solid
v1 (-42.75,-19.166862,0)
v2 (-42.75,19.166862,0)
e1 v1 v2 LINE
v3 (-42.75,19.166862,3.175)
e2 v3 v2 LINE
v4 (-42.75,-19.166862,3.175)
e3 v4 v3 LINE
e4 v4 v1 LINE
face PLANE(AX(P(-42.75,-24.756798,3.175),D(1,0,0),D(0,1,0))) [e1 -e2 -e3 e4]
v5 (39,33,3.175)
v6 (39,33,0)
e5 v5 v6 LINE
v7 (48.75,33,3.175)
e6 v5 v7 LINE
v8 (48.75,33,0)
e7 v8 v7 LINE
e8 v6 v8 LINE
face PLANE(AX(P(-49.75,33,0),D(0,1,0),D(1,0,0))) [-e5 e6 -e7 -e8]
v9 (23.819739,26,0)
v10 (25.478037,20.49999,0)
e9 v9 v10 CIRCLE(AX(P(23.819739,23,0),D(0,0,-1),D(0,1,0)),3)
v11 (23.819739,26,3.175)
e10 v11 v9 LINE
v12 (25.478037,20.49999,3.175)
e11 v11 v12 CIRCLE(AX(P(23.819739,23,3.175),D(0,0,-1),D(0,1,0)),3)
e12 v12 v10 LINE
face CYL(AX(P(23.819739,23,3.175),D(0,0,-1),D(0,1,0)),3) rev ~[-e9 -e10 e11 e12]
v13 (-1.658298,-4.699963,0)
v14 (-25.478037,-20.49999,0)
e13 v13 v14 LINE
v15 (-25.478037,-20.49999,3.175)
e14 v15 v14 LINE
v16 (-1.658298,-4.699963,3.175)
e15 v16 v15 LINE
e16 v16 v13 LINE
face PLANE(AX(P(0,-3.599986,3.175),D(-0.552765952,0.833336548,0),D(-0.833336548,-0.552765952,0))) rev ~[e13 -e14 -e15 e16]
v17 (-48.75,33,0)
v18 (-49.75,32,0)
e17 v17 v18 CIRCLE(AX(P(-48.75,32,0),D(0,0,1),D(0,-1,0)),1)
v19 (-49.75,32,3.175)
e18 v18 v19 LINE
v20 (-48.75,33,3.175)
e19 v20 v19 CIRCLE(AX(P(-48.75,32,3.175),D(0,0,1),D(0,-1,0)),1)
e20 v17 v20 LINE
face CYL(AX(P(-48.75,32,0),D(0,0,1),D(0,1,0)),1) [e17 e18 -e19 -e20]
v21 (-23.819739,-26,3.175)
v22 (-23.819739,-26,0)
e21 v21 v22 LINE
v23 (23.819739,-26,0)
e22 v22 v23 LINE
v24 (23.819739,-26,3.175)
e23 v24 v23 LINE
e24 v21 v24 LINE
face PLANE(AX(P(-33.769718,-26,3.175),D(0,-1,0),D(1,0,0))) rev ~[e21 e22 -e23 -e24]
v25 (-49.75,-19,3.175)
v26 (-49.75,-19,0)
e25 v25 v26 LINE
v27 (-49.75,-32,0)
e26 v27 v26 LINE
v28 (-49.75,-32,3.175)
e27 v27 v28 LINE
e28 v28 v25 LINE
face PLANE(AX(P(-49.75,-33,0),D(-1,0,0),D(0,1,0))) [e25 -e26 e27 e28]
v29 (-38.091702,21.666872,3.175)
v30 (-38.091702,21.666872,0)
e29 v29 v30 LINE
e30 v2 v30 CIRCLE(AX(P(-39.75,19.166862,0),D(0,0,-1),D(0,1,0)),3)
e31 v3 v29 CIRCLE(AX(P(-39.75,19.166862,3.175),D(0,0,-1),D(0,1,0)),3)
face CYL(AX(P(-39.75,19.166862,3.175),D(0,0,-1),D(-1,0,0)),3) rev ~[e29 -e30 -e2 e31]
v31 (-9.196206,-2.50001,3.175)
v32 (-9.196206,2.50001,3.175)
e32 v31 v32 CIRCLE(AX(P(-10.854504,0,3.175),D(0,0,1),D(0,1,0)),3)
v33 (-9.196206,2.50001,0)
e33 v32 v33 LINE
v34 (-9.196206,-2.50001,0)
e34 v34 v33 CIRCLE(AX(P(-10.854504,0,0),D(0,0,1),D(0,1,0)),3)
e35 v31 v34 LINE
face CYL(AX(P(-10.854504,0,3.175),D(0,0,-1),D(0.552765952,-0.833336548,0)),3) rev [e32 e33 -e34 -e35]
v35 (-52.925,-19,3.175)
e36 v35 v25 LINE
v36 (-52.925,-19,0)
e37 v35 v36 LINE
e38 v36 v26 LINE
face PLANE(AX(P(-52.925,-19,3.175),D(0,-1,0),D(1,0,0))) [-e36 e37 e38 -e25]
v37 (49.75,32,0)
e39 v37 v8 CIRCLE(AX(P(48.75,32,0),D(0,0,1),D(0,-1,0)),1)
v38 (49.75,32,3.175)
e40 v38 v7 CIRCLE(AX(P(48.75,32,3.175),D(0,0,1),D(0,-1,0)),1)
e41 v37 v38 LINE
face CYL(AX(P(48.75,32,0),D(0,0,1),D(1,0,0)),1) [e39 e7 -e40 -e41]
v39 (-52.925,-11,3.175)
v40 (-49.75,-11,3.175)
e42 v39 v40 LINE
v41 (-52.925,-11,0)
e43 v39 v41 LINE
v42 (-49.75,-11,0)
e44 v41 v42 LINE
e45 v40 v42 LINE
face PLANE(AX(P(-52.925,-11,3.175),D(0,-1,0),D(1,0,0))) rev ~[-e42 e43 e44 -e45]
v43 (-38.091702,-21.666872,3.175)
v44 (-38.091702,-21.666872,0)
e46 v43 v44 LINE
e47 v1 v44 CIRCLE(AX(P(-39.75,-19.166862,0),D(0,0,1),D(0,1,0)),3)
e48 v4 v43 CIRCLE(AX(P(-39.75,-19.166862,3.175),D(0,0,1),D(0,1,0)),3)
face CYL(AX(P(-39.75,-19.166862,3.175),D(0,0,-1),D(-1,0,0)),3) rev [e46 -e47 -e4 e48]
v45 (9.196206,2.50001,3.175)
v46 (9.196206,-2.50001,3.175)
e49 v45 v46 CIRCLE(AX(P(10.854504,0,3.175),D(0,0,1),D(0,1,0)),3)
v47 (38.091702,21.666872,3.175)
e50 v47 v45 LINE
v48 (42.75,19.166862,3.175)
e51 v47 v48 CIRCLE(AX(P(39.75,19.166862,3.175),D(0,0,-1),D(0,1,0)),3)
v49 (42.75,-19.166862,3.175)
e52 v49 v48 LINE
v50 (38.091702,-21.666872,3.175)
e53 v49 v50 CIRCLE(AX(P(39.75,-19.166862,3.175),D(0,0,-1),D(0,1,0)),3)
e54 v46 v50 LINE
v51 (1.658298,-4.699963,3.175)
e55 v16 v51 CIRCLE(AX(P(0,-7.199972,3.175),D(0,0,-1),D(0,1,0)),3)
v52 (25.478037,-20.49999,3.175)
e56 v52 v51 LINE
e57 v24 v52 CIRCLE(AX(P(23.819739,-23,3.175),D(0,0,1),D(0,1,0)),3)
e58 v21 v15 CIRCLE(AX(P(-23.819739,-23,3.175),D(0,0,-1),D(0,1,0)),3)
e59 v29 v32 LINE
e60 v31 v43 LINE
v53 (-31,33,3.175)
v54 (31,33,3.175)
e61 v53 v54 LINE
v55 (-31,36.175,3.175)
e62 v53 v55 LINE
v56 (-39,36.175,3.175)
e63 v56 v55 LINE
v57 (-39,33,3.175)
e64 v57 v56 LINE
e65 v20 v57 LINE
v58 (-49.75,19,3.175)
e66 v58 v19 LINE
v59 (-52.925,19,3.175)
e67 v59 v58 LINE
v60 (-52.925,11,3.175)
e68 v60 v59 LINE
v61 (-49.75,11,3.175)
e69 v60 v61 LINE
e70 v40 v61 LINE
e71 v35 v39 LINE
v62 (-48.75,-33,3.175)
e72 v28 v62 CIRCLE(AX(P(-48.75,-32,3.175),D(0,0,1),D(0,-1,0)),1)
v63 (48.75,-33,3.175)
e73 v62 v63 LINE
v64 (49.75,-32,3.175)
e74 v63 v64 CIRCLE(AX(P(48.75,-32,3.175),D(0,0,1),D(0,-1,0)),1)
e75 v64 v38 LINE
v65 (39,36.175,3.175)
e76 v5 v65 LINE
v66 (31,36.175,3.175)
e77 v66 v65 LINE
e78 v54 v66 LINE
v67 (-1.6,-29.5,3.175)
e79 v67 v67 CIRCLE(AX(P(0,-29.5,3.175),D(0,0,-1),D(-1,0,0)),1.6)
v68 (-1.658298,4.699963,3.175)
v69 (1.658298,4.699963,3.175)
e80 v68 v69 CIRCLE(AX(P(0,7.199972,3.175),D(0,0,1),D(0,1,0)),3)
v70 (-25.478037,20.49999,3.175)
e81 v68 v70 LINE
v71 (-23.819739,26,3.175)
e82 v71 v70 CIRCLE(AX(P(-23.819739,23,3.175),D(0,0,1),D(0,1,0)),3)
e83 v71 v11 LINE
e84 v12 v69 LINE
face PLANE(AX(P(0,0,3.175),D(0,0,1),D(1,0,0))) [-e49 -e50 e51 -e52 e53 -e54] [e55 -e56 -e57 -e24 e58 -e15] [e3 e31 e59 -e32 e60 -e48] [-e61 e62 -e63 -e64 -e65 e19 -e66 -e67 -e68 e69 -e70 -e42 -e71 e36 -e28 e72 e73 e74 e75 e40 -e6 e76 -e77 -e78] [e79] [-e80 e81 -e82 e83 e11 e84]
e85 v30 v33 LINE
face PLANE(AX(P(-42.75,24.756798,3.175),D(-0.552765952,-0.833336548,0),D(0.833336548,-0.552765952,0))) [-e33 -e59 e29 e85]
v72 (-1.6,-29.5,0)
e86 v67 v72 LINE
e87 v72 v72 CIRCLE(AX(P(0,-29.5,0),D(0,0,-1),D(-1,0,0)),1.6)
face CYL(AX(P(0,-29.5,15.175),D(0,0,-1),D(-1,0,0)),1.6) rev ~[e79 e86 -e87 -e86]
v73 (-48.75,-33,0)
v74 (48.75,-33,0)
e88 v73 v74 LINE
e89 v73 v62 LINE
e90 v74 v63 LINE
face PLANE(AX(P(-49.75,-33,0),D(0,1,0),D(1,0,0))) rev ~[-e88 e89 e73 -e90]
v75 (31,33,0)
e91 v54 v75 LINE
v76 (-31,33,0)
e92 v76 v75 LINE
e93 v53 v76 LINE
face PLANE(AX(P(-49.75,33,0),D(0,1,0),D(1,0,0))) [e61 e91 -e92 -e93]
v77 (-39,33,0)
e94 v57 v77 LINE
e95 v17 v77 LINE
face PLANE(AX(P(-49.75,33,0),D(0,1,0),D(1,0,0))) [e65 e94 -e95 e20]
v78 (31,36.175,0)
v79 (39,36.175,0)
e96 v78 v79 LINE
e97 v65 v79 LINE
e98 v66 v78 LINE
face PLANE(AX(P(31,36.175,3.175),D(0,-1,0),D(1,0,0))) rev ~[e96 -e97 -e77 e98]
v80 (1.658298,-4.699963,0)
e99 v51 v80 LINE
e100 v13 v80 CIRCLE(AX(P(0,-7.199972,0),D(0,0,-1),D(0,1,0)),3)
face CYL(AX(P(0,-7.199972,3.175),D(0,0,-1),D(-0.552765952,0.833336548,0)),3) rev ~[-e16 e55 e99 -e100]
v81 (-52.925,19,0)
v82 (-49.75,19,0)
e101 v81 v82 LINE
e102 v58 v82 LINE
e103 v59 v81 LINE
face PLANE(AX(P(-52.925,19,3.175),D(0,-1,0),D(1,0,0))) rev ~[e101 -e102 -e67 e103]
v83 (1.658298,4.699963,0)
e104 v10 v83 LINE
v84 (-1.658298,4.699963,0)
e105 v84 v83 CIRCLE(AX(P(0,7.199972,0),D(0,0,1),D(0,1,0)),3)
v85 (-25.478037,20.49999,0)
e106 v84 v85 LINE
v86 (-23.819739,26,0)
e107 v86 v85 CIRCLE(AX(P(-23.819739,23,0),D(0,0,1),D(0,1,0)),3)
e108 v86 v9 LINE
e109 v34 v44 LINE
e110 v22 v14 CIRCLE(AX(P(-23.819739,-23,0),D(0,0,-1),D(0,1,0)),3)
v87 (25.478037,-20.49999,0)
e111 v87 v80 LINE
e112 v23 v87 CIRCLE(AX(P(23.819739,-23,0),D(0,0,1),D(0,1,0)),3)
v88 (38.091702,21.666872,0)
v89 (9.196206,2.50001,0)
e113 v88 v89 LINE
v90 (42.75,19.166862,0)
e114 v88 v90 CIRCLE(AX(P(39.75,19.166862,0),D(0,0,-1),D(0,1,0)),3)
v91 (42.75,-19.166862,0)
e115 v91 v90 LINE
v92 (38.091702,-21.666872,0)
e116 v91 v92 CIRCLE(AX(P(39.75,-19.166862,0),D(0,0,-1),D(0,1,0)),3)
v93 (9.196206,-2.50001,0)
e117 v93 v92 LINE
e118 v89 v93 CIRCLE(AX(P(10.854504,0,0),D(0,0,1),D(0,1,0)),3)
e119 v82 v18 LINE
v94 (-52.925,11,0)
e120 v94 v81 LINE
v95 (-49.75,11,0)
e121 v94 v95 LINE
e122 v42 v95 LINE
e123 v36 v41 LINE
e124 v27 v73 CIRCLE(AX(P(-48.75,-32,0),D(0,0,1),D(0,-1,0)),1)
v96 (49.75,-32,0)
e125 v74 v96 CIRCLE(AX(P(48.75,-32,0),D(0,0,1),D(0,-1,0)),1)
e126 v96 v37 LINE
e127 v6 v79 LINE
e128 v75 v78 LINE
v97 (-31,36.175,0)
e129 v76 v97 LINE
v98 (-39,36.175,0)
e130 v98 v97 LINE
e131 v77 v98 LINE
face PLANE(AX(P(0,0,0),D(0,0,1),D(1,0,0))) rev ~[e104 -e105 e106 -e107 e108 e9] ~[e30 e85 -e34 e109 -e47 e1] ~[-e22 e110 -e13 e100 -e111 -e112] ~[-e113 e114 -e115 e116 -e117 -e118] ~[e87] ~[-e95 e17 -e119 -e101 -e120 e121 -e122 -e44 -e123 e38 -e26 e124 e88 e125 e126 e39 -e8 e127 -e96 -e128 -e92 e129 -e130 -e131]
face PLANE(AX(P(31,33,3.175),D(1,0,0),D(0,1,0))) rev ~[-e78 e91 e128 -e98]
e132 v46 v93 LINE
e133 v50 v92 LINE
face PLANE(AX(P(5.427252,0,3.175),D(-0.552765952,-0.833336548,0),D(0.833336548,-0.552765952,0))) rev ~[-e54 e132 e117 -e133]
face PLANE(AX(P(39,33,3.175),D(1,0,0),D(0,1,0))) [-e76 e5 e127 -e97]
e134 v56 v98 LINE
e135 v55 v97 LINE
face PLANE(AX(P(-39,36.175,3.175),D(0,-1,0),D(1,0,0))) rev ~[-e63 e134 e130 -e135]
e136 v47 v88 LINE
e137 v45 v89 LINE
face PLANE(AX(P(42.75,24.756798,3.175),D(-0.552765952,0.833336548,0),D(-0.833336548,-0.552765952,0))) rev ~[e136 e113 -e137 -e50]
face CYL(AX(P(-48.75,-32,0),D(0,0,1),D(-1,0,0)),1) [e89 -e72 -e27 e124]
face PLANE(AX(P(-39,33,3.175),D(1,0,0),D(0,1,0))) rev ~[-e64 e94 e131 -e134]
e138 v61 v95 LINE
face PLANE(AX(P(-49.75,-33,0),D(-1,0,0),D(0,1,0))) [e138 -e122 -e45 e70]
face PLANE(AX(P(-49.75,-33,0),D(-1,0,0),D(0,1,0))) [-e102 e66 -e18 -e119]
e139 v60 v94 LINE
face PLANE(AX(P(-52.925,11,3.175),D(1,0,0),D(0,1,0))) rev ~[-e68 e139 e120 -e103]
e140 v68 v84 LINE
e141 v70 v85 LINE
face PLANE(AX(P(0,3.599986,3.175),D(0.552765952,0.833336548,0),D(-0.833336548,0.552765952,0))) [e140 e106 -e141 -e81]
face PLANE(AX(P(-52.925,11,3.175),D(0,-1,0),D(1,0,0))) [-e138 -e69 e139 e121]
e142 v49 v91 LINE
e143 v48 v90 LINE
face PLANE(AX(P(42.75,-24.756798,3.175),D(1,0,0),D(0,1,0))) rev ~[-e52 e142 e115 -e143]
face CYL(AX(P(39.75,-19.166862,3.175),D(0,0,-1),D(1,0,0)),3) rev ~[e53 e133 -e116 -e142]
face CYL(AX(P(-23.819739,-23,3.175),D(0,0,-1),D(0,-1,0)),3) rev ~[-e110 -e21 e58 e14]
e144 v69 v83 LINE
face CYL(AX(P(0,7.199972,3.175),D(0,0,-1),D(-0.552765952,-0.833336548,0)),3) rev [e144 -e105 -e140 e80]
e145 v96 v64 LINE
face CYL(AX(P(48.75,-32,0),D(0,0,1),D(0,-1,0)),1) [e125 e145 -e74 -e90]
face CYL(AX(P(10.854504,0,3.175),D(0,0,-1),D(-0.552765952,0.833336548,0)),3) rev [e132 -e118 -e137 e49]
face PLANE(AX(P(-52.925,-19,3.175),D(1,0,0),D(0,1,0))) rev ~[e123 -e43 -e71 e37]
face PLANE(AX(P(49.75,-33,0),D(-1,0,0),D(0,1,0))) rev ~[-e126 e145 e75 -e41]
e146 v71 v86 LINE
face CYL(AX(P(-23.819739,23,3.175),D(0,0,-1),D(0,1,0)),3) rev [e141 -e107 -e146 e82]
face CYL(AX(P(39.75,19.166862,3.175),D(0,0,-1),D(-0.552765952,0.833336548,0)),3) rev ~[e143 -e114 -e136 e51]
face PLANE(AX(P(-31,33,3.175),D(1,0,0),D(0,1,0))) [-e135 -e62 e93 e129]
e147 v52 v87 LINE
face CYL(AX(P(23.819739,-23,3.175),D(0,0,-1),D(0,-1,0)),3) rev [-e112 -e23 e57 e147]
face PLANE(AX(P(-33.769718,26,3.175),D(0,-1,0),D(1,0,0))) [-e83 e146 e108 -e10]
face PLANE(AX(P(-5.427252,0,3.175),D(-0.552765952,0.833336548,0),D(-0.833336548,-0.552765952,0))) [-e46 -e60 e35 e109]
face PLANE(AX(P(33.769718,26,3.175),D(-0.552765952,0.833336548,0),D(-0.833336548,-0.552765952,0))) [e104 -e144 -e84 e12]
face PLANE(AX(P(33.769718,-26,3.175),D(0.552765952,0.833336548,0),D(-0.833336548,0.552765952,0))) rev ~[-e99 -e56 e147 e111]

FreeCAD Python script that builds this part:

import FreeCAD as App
import Part
import Sketcher
from FreeCAD import Vector
Q = App.Units.Quantity


def edges_at(feature, points):
    """Names of the edges that pass closest to the given points."""
    edges = feature.Shape.Edges
    near = lambda p: min(range(len(edges)), key=lambda i: edges[i].distToShape(Part.Vertex(*p))[0])
    return sorted({f"Edge{near(p) + 1}" for p in points})

doc = App.newDocument("Part")
body = doc.addObject("PartDesign::Body", "Body")

# Sketch on XY plane
sketch1 = body.newObject("Sketcher::SketchObject", "Sketch")
sketch1.AttachmentSupport = (doc.getObject("XY_Plane"), [""])
sketch1.MapMode = "FlatFace"
sketch1.addGeometry([
    Part.LineSegment(Vector(-50, 33, 0), Vector(-50, -33, 0)),
    Part.LineSegment(Vector(-50, -33, 0), Vector(50, -33, 0)),
    Part.LineSegment(Vector(50, -33, 0), Vector(50, 33, 0)),
    Part.LineSegment(Vector(50, 33, 0), Vector(-50, 33, 0)),
], False)
sketch1.addConstraint([
    Sketcher.Constraint("Coincident", 0, 2, 1, 1),
    Sketcher.Constraint("Coincident", 1, 2, 2, 1),
    Sketcher.Constraint("Coincident", 2, 2, 3, 1),
    Sketcher.Constraint("Coincident", 3, 2, 0, 1),
    Sketcher.Constraint("Vertical", 0),
    Sketcher.Constraint("Horizontal", 1),
    Sketcher.Constraint("Vertical", 2),
    Sketcher.Constraint("Horizontal", 3),
    Sketcher.Constraint("Symmetric", 0, 2, 2, 2, -1, 1),
    Sketcher.Constraint("DistanceY", 0, 2, 0, 1, Q("66 mm")),
    Sketcher.Constraint("DistanceX", 1, 1, 1, 2, Q("99.5 mm")),
])
pad1 = body.newObject("PartDesign::Pad", "Pad")
pad1.Profile = sketch1
pad1.Length = 3.175

# Sketch on XY plane
sketch2 = body.newObject("Sketcher::SketchObject", "Sketch001")
sketch2.AttachmentSupport = (doc.getObject("XY_Plane"), [""])
sketch2.MapMode = "FlatFace"
sketch2.AttachmentOffset = App.Placement(Vector(0, 0, 3.175), App.Rotation())
sketch2.addGeometry([
    Part.LineSegment(Vector(-5, 0, 0), Vector(-43, 25, 0)),  # 0
    Part.LineSegment(Vector(-43, 25, 0), Vector(-43, -25, 0)),  # 1
    Part.LineSegment(Vector(-43, -25, 0), Vector(-5, 0, 0)),  # 2
    Part.LineSegment(Vector(0, 4, 0), Vector(34, 26, 0)),  # 3
    Part.LineSegment(Vector(34, 26, 0), Vector(-34, 26, 0)),  # 4
    Part.LineSegment(Vector(-34, 26, 0), Vector(0, 4, 0)),  # 5
    Part.LineSegment(Vector(43, 25, 0), Vector(5, 0, 0)),  # 6
    Part.LineSegment(Vector(5, 0, 0), Vector(43, -25, 0)),  # 7
    Part.LineSegment(Vector(43, -25, 0), Vector(43, 25, 0)),  # 8
    Part.LineSegment(Vector(-34, -26, 0), Vector(34, -26, 0)),  # 9
    Part.LineSegment(Vector(34, -26, 0), Vector(0, -4, 0)),  # 10
    Part.LineSegment(Vector(0, -4, 0), Vector(-34, -26, 0)),  # 11
], False)
sketch2.addConstraint([
    Sketcher.Constraint("Coincident", 0, 2, 1, 1),
    Sketcher.Constraint("Coincident", 1, 2, 2, 1),
    Sketcher.Constraint("Coincident", 2, 2, 0, 1),
    Sketcher.Constraint("Coincident", 3, 2, 4, 1),
    Sketcher.Constraint("Coincident", 4, 2, 5, 1),
    Sketcher.Constraint("Coincident", 5, 2, 3, 1),
    Sketcher.Constraint("Coincident", 6, 2, 7, 1),
    Sketcher.Constraint("Coincident", 7, 2, 8, 1),
    Sketcher.Constraint("Coincident", 8, 2, 6, 1),
    Sketcher.Constraint("Coincident", 9, 2, 10, 1),
    Sketcher.Constraint("Coincident", 10, 2, 11, 1),
    Sketcher.Constraint("Coincident", 11, 2, 9, 1),
    Sketcher.Constraint("Vertical", 1),
    Sketcher.Constraint("Horizontal", 4),
    Sketcher.Constraint("Vertical", 8),
    Sketcher.Constraint("Horizontal", 9),
    Sketcher.Constraint("Symmetric", 2, 2, 6, 2, -1, 1),
    Sketcher.Constraint("Symmetric", 0, 2, 7, 2, -1, 1),
    Sketcher.Constraint("Symmetric", 4, 2, 9, 2, -1, 1),
    Sketcher.Constraint("Symmetric", 5, 2, 10, 2, -1, 1),
    Sketcher.Constraint("PointOnObject", 2, 2, -1),
    Sketcher.Constraint("PointOnObject", 5, 2, -2),
    Sketcher.Constraint("Parallel", 2, 3),
    Sketcher.Constraint("Parallel", 0, 5),
    Sketcher.Constraint("Parallel", 3, 6),
    Sketcher.Constraint("Parallel", 6, 11),
    Sketcher.Constraint("Horizontal", 1, 2, 7, 2),
    Sketcher.Constraint("DistanceY", -1, 1, 3, 2, Q("26 mm")),
    Sketcher.Constraint("DistanceX", 1, 2, 7, 2, Q("85.5 mm")),
    Sketcher.Constraint("DistanceX", 4, 2, 4, 1, Q("67.539436 mm")),
    Sketcher.Constraint("DistanceY", 1, 2, 1, 1, Q("49.513596 mm")),
    Sketcher.Constraint("DistanceX", 2, 2, -1, 1, Q("5.427252 mm")),
])
pocket1 = body.newObject("PartDesign::Pocket", "Pocket")
pocket1.Profile = sketch2
pocket1.Type = "ThroughAll"

# Sketch on XY plane
sketch3 = body.newObject("Sketcher::SketchObject", "Sketch002")
sketch3.AttachmentSupport = (doc.getObject("XY_Plane"), [""])
sketch3.MapMode = "FlatFace"
sketch3.AttachmentOffset = App.Placement(Vector(0, 0, 3.175), App.Rotation())
sketch3.addGeometry(Part.Circle(Vector(0, -29.5, 0), Vector(0, 0, 1), 1.6), False)
sketch3.addConstraint([
    Sketcher.Constraint("PointOnObject", 0, 3, -2),
    Sketcher.Constraint("Diameter", 0, Q("3.2 mm")),
    Sketcher.Constraint("DistanceY", 0, 3, -1, 1, Q("29.5 mm")),
])
doc.recompute()
hole = body.newObject("PartDesign::Hole", "Hole")
hole.Profile = sketch3
hole.ThreadType = "None"
hole.Diameter = 3.2
hole.DepthType = "Dimension"
hole.Depth = 12
hole.DrillPoint = "Angled"
hole.DrillPointAngle = 118

# Sketch on XY plane
sketch4 = body.newObject("Sketcher::SketchObject", "Sketch003")
sketch4.AttachmentSupport = (doc.getObject("XY_Plane"), [""])
sketch4.MapMode = "FlatFace"
sketch4.AttachmentOffset = App.Placement(Vector(0, 0, 3.175), App.Rotation())
sketch4.addGeometry([
    Part.LineSegment(Vector(-52.9, 19, 0), Vector(-52.9, 11, 0)),  # 0
    Part.LineSegment(Vector(-52.9, 11, 0), Vector(-49.8, 11, 0)),  # 1
    Part.LineSegment(Vector(-49.8, 11, 0), Vector(-49.8, 19, 0)),  # 2
    Part.LineSegment(Vector(-49.8, 19, 0), Vector(-52.9, 19, 0)),  # 3
    Part.LineSegment(Vector(-52.9, -11, 0), Vector(-52.9, -19, 0)),  # 4
    Part.LineSegment(Vector(-52.9, -19, 0), Vector(-49.8, -19, 0)),  # 5
    Part.LineSegment(Vector(-49.8, -19, 0), Vector(-49.8, -11, 0)),  # 6
    Part.LineSegment(Vector(-49.8, -11, 0), Vector(-52.9, -11, 0)),  # 7
    Part.LineSegment(Vector(-39, 36.2, 0), Vector(-39, 33, 0)),  # 8
    Part.LineSegment(Vector(-39, 33, 0), Vector(-31, 33, 0)),  # 9
    Part.LineSegment(Vector(-31, 33, 0), Vector(-31, 36.2, 0)),  # 10
    Part.LineSegment(Vector(-31, 36.2, 0), Vector(-39, 36.2, 0)),  # 11
    Part.LineSegment(Vector(31, 36.2, 0), Vector(31, 33, 0)),  # 12
    Part.LineSegment(Vector(31, 33, 0), Vector(39, 33, 0)),  # 13
    Part.LineSegment(Vector(39, 33, 0), Vector(39, 36.2, 0)),  # 14
    Part.LineSegment(Vector(39, 36.2, 0), Vector(31, 36.2, 0)),  # 15
], False)
sketch4.addConstraint([
    Sketcher.Constraint("Coincident", 0, 2, 1, 1),
    Sketcher.Constraint("Coincident", 1, 2, 2, 1),
    Sketcher.Constraint("Coincident", 2, 2, 3, 1),
    Sketcher.Constraint("Coincident", 3, 2, 0, 1),
    Sketcher.Constraint("Coincident", 4, 2, 5, 1),
    Sketcher.Constraint("Coincident", 5, 2, 6, 1),
    Sketcher.Constraint("Coincident", 6, 2, 7, 1),
    Sketcher.Constraint("Coincident", 7, 2, 4, 1),
    Sketcher.Constraint("Coincident", 8, 2, 9, 1),
    Sketcher.Constraint("Coincident", 9, 2, 10, 1),
    Sketcher.Constraint("Coincident", 10, 2, 11, 1),
    Sketcher.Constraint("Coincident", 11, 2, 8, 1),
    Sketcher.Constraint("Coincident", 12, 2, 13, 1),
    Sketcher.Constraint("Coincident", 13, 2, 14, 1),
    Sketcher.Constraint("Coincident", 14, 2, 15, 1),
    Sketcher.Constraint("Coincident", 15, 2, 12, 1),
    Sketcher.Constraint("Vertical", 0),
    Sketcher.Constraint("Horizontal", 1),
    Sketcher.Constraint("Vertical", 2),
    Sketcher.Constraint("Horizontal", 3),
    Sketcher.Constraint("Vertical", 4),
    Sketcher.Constraint("Horizontal", 5),
    Sketcher.Constraint("Vertical", 6),
    Sketcher.Constraint("Horizontal", 7),
    Sketcher.Constraint("Vertical", 8),
    Sketcher.Constraint("Horizontal", 9),
    Sketcher.Constraint("Vertical", 10),
    Sketcher.Constraint("Horizontal", 11),
    Sketcher.Constraint("Vertical", 12),
    Sketcher.Constraint("Horizontal", 13),
    Sketcher.Constraint("Vertical", 14),
    Sketcher.Constraint("Horizontal", 15),
    Sketcher.Constraint("Symmetric", 9, 2, 12, 2, -2),
    Sketcher.Constraint("Symmetric", 11, 2, 14, 2, -2),
    Sketcher.Constraint("Symmetric", 3, 2, 4, 2, -1),
    Sketcher.Constraint("Symmetric", 1, 2, 6, 2, -1),
    Sketcher.Constraint("Equal", 15, 0),
    Sketcher.Constraint("Equal", 7, 8),
    Sketcher.Constraint("DistanceX", 9, 1, 9, 2, Q("8 mm")),
    Sketcher.Constraint("DistanceY", -1, 1, 0, 2, Q("11 mm")),
    Sketcher.Constraint("DistanceX", 8, 2, -1, 1, Q("39 mm")),
    Sketcher.Constraint("DistanceY", -1, 1, 8, 2, Q("33 mm")),
    Sketcher.Constraint("DistanceX", 1, 1, 1, 2, Q("3.175 mm")),
    Sketcher.Constraint("DistanceX", 1, 2, -1, 1, Q("49.75 mm")),
])
pad2 = body.newObject("PartDesign::Pad", "Pad001")
pad2.Profile = sketch4
pad2.Length = 3.175
pad2.Reversed = True
doc.recompute()

fillet = body.newObject("PartDesign::Fillet", "Fillet")
fillet.Base = (pad2, edges_at(pad2, [
    (42.75, 24.757, 1.587),
    (42.75, -24.757, 1.587),
    (5.427, 0, 1.587),
    (-33.77, 26, 1.587),
    (33.77, 26, 1.587),
    (0, 3.6, 1.587),
    (0, -3.6, 1.587),
    (33.77, -26, 1.587),
    (-33.77, -26, 1.587),
    (-42.75, -24.757, 1.587),
    (-42.75, 24.757, 1.587),
    (-5.427, 0, 1.587),
]))
fillet.Radius = 3
doc.recompute()

fillet2 = body.newObject("PartDesign::Fillet", "Fillet001")
fillet2.Base = (fillet, edges_at(fillet, [
    (49.75, -33, 1.587),
    (-49.75, -33, 1.587),
    (-49.75, 33, 1.587),
    (49.75, 33, 1.587),
]))
fillet2.Radius = 1

doc.recompute()
